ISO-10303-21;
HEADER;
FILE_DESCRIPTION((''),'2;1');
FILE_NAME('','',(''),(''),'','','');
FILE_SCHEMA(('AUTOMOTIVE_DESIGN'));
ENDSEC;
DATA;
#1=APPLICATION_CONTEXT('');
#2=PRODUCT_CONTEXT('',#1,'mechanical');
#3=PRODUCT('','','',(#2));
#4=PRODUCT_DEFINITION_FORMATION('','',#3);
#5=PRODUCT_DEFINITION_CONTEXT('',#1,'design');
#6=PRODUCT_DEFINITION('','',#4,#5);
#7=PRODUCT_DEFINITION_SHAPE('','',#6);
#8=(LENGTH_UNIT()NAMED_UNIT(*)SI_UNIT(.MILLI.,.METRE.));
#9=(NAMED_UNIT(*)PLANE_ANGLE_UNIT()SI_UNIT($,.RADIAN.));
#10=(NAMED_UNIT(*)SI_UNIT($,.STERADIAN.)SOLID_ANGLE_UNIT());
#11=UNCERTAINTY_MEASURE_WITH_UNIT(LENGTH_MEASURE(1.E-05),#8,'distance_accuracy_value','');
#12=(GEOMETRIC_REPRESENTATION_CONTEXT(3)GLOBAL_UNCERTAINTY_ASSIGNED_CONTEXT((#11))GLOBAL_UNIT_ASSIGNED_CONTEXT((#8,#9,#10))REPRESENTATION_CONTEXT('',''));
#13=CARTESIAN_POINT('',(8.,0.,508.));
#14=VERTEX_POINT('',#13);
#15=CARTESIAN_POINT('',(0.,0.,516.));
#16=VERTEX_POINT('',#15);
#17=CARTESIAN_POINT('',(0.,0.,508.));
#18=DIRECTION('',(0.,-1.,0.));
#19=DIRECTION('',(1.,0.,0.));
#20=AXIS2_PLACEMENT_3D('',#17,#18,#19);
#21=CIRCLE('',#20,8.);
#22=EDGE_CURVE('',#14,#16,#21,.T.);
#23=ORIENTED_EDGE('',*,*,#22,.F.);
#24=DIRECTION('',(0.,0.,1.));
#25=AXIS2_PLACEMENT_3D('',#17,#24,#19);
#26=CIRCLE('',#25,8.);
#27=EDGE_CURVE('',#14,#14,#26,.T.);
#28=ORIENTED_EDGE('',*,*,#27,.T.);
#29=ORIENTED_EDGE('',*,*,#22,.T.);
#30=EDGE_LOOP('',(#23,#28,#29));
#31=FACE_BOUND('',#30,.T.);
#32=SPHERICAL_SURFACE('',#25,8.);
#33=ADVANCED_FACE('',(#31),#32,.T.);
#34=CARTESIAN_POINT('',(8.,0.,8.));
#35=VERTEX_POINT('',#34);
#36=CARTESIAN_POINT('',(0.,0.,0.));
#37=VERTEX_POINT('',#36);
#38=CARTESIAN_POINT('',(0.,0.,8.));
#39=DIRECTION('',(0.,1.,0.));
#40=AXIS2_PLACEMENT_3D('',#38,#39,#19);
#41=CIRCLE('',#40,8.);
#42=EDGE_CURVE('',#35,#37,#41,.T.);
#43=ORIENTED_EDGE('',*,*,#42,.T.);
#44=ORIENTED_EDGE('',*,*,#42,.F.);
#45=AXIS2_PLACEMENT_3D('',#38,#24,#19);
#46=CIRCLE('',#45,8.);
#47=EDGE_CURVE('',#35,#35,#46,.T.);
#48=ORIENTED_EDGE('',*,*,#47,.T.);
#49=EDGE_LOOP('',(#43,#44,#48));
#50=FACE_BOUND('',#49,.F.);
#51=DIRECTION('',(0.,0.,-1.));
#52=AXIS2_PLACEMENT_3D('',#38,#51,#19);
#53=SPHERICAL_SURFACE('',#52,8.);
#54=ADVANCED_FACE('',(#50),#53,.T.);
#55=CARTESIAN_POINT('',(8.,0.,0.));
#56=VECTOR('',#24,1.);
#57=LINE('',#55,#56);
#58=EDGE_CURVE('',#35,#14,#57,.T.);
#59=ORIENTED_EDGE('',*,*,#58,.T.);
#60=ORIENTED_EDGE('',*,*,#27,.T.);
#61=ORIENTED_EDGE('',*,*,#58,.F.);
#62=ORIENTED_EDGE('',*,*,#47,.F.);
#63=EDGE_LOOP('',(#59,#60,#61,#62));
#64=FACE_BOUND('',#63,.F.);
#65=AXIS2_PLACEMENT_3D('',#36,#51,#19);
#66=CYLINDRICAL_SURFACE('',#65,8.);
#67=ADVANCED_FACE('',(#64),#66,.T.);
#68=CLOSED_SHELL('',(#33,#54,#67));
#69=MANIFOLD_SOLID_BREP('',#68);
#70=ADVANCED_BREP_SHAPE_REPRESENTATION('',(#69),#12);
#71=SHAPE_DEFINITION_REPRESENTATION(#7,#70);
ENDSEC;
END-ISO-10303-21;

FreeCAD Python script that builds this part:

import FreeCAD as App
import Part
import Sketcher
from FreeCAD import Vector


def edges_at(feature, points):
    """Names of the edges that pass closest to the given points."""
    edges = feature.Shape.Edges
    near = lambda p: min(range(len(edges)), key=lambda i: edges[i].distToShape(Part.Vertex(*p))[0])
    return sorted({f"Edge{near(p) + 1}" for p in points})

doc = App.newDocument("Part")
body = doc.addObject("PartDesign::Body", "Body")

sketch1 = doc.addObject("Sketcher::SketchObject", "Sketch")
body.addObject(sketch1)
sketch1.AttachmentSupport = (doc.XY_Plane, [""])
sketch1.MapMode = "FlatFace"
sketch1.addGeometry(Part.Circle(Vector(0, 0, 0), Vector(0, 0, 1), 8), False)
sketch1.addConstraint([
    Sketcher.Constraint("Coincident", 0, 3, -1, 1),
    Sketcher.Constraint("Diameter", 0, 16.0),
])
pad1 = doc.addObject("PartDesign::Pad", "Pad")
body.addObject(pad1)
pad1.Profile = sketch1
pad1.Length = 516
doc.recompute()

fillet = doc.addObject("PartDesign::Fillet", "Fillet")
body.addObject(fillet)
fillet.Base = (pad1, edges_at(pad1, [(-8, 0, 0), (-8, 0, 516)]))
fillet.Radius = 8

doc.recompute()
